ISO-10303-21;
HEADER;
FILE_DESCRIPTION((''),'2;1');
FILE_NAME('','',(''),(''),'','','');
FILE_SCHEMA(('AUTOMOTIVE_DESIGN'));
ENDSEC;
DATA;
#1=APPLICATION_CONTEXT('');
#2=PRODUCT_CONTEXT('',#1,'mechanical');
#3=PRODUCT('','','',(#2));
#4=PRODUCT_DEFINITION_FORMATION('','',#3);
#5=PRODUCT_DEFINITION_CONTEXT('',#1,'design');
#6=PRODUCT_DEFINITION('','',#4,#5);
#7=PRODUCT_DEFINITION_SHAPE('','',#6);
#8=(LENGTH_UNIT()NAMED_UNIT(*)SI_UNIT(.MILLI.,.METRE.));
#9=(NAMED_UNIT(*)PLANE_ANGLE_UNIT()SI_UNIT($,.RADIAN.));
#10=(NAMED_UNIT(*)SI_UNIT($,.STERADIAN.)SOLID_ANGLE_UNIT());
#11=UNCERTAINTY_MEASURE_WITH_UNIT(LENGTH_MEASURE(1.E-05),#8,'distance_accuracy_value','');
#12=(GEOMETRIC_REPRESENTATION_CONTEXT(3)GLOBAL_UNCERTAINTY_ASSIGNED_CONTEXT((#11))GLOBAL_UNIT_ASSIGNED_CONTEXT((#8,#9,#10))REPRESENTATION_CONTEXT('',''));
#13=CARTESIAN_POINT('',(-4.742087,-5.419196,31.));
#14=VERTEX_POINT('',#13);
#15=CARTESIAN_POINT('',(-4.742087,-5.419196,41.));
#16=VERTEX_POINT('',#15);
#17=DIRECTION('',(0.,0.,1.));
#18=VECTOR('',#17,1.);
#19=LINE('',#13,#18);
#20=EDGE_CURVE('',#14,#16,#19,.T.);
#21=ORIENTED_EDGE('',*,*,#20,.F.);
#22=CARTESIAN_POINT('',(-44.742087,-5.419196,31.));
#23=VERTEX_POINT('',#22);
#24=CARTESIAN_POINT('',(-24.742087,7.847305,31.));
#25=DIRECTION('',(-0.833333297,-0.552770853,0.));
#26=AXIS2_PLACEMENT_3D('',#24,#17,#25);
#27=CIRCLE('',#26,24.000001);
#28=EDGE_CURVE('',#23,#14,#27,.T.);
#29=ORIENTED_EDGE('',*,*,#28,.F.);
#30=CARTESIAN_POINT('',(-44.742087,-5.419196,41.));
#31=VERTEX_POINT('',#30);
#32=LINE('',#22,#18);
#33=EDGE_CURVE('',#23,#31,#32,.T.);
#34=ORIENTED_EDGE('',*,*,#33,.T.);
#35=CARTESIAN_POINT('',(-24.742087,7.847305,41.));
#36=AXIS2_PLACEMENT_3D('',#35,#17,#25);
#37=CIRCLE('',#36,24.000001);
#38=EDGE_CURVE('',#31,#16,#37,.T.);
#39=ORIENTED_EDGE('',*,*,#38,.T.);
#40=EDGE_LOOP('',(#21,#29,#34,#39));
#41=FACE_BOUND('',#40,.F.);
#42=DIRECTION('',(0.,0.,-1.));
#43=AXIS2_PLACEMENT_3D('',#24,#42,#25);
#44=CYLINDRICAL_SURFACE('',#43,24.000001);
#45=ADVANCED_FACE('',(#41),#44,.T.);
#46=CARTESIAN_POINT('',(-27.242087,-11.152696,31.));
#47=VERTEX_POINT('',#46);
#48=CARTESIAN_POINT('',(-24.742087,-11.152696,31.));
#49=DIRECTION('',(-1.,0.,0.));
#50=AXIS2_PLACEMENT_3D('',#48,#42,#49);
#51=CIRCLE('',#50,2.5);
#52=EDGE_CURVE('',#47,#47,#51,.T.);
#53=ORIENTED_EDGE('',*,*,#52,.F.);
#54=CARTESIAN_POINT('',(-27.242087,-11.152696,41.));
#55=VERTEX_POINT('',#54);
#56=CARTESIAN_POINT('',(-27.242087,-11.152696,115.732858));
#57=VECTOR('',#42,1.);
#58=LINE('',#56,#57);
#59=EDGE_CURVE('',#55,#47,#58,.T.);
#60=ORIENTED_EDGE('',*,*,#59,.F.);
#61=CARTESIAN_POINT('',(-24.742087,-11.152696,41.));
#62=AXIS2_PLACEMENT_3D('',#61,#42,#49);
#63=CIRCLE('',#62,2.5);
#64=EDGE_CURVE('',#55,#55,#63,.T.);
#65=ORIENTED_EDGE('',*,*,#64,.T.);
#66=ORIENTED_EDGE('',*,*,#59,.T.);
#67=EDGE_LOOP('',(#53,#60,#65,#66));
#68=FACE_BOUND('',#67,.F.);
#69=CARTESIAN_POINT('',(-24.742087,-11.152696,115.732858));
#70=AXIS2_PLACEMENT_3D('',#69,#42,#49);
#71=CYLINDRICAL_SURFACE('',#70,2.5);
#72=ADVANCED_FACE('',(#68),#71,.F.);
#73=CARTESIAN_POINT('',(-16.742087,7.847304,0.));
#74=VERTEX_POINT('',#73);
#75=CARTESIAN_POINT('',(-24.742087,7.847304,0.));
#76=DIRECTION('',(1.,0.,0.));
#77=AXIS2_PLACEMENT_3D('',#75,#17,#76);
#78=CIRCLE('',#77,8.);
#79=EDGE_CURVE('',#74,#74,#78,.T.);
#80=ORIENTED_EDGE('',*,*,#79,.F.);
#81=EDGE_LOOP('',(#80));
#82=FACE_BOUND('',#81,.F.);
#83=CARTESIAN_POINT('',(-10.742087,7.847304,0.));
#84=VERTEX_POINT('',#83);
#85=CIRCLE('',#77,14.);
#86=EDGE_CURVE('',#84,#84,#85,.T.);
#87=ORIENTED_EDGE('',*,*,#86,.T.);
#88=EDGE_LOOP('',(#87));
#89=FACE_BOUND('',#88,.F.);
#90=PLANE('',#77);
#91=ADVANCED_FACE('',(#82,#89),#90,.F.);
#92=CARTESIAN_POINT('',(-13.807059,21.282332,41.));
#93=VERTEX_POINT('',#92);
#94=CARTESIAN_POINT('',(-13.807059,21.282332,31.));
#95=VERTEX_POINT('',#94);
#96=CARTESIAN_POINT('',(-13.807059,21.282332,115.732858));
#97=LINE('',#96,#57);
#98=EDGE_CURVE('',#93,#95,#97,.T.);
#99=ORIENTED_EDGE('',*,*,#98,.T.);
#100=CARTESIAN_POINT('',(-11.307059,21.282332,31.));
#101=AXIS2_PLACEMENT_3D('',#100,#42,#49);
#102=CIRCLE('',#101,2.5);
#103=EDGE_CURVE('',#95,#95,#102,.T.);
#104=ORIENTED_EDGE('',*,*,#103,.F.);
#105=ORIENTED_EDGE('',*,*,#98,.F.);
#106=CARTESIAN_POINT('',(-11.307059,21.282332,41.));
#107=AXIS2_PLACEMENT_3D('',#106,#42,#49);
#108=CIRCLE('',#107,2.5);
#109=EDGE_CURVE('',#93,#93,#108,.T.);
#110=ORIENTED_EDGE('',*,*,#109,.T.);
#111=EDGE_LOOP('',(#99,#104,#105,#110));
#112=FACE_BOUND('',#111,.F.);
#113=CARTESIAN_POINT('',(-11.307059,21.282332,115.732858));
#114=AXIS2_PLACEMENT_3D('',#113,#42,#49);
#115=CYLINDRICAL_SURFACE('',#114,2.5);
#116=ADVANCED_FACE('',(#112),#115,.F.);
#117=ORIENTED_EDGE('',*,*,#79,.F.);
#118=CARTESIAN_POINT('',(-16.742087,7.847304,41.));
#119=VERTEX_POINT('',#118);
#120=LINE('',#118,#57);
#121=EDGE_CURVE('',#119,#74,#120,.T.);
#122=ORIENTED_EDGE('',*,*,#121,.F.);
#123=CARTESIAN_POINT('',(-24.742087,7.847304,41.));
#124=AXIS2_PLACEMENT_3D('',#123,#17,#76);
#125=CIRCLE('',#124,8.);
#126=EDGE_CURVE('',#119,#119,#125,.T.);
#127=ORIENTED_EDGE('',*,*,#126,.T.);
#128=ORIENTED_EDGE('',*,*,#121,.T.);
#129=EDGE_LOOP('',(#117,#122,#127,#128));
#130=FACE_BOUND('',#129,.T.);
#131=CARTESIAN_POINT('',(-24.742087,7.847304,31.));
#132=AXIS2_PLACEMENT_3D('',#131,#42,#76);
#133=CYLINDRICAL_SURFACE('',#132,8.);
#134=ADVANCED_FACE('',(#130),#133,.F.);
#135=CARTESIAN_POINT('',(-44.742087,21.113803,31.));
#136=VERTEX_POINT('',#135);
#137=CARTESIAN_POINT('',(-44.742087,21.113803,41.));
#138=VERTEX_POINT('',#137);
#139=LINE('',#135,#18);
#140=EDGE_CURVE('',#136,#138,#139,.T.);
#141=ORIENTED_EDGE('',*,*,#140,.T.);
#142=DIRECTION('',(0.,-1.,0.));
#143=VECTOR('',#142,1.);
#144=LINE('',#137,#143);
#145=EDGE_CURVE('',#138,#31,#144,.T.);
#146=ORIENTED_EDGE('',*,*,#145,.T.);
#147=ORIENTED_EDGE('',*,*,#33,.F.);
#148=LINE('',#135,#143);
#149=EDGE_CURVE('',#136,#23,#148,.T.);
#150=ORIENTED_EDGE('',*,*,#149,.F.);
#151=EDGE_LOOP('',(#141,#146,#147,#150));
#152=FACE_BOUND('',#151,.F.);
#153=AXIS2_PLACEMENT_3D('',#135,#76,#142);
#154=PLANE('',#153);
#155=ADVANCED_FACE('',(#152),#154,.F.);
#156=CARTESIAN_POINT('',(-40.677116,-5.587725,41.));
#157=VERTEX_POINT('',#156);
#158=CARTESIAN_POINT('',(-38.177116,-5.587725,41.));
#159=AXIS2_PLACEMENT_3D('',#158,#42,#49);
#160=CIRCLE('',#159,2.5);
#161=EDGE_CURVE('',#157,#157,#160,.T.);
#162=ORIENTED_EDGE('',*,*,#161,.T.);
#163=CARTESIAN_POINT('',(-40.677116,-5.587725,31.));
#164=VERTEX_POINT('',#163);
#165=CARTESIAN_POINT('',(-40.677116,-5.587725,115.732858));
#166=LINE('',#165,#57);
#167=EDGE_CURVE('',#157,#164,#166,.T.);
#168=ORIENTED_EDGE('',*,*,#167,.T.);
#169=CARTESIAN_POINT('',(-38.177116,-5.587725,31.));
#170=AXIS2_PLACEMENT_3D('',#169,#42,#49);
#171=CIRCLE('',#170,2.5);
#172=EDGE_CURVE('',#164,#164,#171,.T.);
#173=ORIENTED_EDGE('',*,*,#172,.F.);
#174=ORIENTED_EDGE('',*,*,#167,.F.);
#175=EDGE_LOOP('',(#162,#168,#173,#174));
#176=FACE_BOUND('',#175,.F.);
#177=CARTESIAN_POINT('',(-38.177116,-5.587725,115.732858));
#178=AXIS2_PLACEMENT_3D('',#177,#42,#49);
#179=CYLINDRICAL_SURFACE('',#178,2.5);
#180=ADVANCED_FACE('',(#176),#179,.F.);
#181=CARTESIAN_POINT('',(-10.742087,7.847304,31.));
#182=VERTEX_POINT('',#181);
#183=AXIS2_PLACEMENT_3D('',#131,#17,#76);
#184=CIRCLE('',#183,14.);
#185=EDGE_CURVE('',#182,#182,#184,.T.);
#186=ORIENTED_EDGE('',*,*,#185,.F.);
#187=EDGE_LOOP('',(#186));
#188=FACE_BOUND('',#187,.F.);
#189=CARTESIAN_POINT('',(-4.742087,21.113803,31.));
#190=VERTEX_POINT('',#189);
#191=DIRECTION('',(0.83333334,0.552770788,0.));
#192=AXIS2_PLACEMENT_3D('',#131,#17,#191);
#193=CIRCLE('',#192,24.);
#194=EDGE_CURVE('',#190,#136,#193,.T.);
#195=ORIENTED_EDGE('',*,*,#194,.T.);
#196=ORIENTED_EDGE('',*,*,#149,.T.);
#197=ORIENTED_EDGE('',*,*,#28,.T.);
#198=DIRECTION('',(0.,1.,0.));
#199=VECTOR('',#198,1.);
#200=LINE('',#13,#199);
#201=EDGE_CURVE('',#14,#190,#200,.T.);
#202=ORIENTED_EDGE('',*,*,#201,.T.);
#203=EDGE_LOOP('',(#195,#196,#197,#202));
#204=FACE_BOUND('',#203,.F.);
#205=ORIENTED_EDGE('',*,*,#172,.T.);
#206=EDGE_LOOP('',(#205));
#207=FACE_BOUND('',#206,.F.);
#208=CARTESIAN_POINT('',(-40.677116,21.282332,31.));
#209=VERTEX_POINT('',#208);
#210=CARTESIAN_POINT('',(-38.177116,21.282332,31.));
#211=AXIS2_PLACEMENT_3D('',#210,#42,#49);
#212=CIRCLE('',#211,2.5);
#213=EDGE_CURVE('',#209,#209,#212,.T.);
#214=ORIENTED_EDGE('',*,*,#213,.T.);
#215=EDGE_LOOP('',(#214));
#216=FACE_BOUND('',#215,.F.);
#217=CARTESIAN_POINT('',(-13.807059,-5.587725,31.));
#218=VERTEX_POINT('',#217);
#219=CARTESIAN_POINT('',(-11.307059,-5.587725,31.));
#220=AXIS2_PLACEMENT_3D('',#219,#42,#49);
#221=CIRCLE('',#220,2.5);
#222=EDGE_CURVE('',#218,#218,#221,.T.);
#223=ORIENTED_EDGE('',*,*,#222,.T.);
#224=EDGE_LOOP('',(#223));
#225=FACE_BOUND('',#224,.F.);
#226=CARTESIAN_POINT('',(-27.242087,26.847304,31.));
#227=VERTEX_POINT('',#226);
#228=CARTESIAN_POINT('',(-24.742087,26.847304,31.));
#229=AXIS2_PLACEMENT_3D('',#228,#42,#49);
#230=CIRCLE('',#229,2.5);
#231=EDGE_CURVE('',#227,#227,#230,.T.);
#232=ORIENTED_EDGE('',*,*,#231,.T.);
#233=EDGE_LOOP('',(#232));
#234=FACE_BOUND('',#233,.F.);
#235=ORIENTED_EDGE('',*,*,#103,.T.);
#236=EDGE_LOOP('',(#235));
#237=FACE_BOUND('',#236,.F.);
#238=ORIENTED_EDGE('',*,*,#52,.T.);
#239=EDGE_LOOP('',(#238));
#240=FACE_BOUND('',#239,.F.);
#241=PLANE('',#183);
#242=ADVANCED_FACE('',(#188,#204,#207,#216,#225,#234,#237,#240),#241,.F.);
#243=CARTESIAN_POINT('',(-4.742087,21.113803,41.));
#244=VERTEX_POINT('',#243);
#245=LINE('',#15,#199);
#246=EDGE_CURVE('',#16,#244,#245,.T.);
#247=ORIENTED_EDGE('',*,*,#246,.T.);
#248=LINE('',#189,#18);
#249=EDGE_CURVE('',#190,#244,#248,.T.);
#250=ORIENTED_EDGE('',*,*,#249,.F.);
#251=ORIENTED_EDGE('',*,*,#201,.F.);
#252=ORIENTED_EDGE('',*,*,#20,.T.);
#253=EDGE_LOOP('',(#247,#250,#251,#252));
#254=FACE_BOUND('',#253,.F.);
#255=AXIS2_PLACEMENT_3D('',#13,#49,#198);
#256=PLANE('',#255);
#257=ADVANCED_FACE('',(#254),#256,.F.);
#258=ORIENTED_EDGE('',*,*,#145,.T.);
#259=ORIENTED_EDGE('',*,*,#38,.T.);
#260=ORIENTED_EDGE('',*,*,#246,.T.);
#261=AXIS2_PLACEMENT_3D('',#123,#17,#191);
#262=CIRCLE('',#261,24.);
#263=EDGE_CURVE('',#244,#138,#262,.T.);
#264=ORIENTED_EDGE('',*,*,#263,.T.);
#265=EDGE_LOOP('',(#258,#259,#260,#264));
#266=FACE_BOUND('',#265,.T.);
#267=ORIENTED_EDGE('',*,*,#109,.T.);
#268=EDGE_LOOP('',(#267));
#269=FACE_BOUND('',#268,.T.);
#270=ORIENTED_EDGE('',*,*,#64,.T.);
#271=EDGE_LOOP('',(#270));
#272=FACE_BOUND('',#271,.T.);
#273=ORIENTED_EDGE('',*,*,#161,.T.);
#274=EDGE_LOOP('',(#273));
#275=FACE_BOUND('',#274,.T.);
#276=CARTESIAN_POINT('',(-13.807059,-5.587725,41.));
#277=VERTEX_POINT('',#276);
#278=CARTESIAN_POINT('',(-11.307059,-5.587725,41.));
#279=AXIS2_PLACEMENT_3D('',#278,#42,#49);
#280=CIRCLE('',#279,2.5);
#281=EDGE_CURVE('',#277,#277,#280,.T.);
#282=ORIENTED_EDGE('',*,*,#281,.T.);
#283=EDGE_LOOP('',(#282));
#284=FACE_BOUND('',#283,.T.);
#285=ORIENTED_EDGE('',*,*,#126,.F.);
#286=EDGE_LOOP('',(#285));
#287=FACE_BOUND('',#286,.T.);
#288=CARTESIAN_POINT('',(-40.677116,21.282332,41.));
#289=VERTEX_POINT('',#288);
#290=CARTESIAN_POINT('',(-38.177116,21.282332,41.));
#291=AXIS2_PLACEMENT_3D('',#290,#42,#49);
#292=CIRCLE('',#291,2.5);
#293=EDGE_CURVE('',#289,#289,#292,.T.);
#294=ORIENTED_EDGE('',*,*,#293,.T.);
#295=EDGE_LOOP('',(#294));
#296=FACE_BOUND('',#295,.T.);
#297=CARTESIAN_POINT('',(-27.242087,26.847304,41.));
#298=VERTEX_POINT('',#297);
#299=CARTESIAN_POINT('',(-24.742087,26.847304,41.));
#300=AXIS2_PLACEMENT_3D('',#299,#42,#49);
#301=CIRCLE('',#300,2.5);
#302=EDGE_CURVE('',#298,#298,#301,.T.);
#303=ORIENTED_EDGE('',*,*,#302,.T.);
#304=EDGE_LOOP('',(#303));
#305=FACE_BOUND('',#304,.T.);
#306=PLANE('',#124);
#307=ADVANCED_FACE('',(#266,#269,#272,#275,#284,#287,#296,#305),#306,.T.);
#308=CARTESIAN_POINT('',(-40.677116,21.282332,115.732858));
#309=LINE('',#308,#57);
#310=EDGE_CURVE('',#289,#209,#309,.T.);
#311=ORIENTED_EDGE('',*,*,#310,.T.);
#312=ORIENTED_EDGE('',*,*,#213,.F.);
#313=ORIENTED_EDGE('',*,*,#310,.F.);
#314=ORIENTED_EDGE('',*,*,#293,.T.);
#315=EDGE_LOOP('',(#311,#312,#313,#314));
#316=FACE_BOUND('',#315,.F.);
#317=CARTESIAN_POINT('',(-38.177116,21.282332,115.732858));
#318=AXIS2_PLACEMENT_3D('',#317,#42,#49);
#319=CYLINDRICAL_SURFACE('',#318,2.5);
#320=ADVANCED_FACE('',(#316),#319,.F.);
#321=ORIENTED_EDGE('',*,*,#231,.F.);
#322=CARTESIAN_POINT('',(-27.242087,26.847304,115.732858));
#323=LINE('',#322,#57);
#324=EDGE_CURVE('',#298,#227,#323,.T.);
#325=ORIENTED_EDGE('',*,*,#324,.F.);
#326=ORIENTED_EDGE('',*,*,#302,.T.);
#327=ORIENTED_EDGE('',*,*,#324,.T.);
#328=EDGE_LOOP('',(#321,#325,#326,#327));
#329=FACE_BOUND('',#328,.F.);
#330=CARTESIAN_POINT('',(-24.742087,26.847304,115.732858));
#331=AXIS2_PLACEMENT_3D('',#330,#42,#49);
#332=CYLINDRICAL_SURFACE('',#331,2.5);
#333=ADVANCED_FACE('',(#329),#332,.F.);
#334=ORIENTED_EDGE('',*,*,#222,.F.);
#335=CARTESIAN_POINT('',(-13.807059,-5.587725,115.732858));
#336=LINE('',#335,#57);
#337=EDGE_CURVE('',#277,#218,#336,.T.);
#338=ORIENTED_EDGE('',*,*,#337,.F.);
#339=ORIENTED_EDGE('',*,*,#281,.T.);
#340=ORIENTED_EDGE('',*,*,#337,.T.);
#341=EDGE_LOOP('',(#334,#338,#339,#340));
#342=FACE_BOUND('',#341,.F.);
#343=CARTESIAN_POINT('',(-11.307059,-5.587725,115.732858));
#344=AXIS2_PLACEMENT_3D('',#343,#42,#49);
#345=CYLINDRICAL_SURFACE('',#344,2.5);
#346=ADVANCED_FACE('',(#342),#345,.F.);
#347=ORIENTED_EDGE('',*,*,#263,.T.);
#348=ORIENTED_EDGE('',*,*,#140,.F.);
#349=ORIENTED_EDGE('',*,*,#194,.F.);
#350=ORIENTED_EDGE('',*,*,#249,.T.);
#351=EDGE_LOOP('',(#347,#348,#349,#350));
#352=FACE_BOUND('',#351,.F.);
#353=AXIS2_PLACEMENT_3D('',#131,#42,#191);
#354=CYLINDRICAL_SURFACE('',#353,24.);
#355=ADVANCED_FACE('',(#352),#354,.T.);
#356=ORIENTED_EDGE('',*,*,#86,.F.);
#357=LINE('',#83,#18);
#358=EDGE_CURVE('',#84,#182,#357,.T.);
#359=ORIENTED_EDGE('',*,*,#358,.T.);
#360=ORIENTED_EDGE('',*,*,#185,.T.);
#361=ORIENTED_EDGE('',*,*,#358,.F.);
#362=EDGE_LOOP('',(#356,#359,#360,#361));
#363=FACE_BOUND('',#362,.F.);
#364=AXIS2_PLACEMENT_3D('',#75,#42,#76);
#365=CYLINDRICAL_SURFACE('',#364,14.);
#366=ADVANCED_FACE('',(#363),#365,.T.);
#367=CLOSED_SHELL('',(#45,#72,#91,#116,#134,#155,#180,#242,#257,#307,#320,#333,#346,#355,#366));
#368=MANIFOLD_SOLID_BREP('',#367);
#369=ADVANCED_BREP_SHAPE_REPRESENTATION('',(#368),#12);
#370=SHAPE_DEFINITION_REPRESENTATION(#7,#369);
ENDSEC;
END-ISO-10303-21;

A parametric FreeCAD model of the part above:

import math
import FreeCAD as App
import Part
import Sketcher

V = App.Vector

doc = App.newDocument("Part")
body = doc.addObject("PartDesign::Body", "Body")

# Sketch on XY plane
sketch1 = body.newObject("Sketcher::SketchObject", "Sketch")
sketch1.AttachmentSupport = (doc.getObject("XY_Plane"), [""])
sketch1.MapMode = "FlatFace"
sketch1.addGeometry(Part.Circle(V(-25, 8, 0), V(0, 0, 1), 14), False)
sketch1.addGeometry(Part.Circle(V(-25, 8, 0), V(0, 0, 1), 8), False)
sketch1.addConstraint(Sketcher.Constraint("Coincident", 1, 3, 0, 3))
sketch1.addConstraint(Sketcher.Constraint("Diameter", 0, 28.0))
sketch1.addConstraint(Sketcher.Constraint("Diameter", 1, 16.0))
sketch1.addConstraint(Sketcher.Constraint("DistanceX", 0, 3, -1, 1, 24.742087))
sketch1.addConstraint(Sketcher.Constraint("DistanceY", -1, 1, 0, 3, 7.847304))
pad1 = body.newObject("PartDesign::Pad", "Pad")
pad1.Profile = sketch1
pad1.Length = 31

# Sketch on XY plane
sketch2 = body.newObject("Sketcher::SketchObject", "Sketch001")
sketch2.AttachmentSupport = (doc.getObject("XY_Plane"), [""])
sketch2.MapMode = "FlatFace"
sketch2.AttachmentOffset = App.Placement(V(0, 0, 31), App.Rotation())
sketch2.addGeometry(Part.LineSegment(V(-5, -5, 0), V(-5, 21, 0)), False)
sketch2.addGeometry(Part.ArcOfCircle(Part.Circle(V(-25, 8, 0), V(0, 0, 1), 24), math.radians(34), math.radians(146)), False)
sketch2.addGeometry(Part.LineSegment(V(-45, 21, 0), V(-45, -5, 0)), False)
sketch2.addGeometry(Part.ArcOfCircle(Part.Circle(V(-25, 8, 0), V(0, 0, 1), 24), math.radians(-146), math.radians(-34)), False)
sketch2.addGeometry(Part.Circle(V(-25, 8, 0), V(0, 0, 1), 8), False)
sketch2.addConstraint(Sketcher.Constraint("Coincident", 0, 2, 1, 1))
sketch2.addConstraint(Sketcher.Constraint("Coincident", 1, 2, 2, 1))
sketch2.addConstraint(Sketcher.Constraint("Coincident", 2, 2, 3, 1))
sketch2.addConstraint(Sketcher.Constraint("Coincident", 3, 2, 0, 1))
sketch2.addConstraint(Sketcher.Constraint("Vertical", 0))
sketch2.addConstraint(Sketcher.Constraint("Vertical", 2))
sketch2.addConstraint(Sketcher.Constraint("Coincident", 3, 3, 1, 3))
sketch2.addConstraint(Sketcher.Constraint("Coincident", 4, 3, 1, 3))
sketch2.addConstraint(Sketcher.Constraint("Equal", 1, 3))
sketch2.addConstraint(Sketcher.Constraint("Horizontal", 0, 2, 1, 2))
sketch2.addConstraint(Sketcher.Constraint("Diameter", 4, 16.0))
sketch2.addConstraint(Sketcher.Constraint("Radius", 1, 24.0))
sketch2.addConstraint(Sketcher.Constraint("DistanceX", 3, 3, 0, 2, 20.0))
sketch2.addConstraint(Sketcher.Constraint("DistanceX", 1, 3, -1, 1, 24.742087))
sketch2.addConstraint(Sketcher.Constraint("DistanceY", -1, 1, 1, 3, 7.847304))
pad2 = body.newObject("PartDesign::Pad", "Pad001")
pad2.Profile = sketch2
pad2.Length = 10

# Sketch on XY plane
sketch3 = body.newObject("Sketcher::SketchObject", "Sketch002")
sketch3.AttachmentSupport = (doc.getObject("XY_Plane"), [""])
sketch3.MapMode = "FlatFace"
sketch3.AttachmentOffset = App.Placement(V(0, 0, 41), App.Rotation())
sketch3.addGeometry(Part.Circle(V(-38.2, 21.3, 0), V(0, 0, 1), 2.5), False)
sketch3.addGeometry(Part.Circle(V(-24.7, 26.8, 0), V(0, 0, 1), 2.5), False)
sketch3.addGeometry(Part.Circle(V(-11.3, 21.3, 0), V(0, 0, 1), 2.5), False)
sketch3.addGeometry(Part.Circle(V(-11.3, -5.6, 0), V(0, 0, 1), 2.5), False)
sketch3.addGeometry(Part.Circle(V(-24.7, -11.2, 0), V(0, 0, 1), 2.5), False)
sketch3.addGeometry(Part.Circle(V(-38.2, -5.6, 0), V(0, 0, 1), 2.5), False)
sketch3.addConstraint(Sketcher.Constraint("Equal", 0, 1))
sketch3.addConstraint(Sketcher.Constraint("Equal", 1, 2))
sketch3.addConstraint(Sketcher.Constraint("Equal", 2, 3))
sketch3.addConstraint(Sketcher.Constraint("Equal", 3, 4))
sketch3.addConstraint(Sketcher.Constraint("Equal", 4, 5))
sketch3.addConstraint(Sketcher.Constraint("Horizontal", 0, 3, 2, 3))
sketch3.addConstraint(Sketcher.Constraint("Horizontal", 3, 3, 5, 3))
sketch3.addConstraint(Sketcher.Constraint("Vertical", 2, 3, 3, 3))
sketch3.addConstraint(Sketcher.Constraint("Vertical", 1, 3, 4, 3))
sketch3.addConstraint(Sketcher.Constraint("Vertical", 0, 3, 5, 3))
sketch3.addConstraint(Sketcher.Constraint("Diameter", 0, 5.0))
sketch3.addConstraint(Sketcher.Constraint("DistanceY", 4, 3, 1, 3, 38.0))
sketch3.addConstraint(Sketcher.Constraint("DistanceY", -1, 1, 0, 3, 21.282332))
sketch3.addConstraint(Sketcher.Constraint("DistanceX", 2, 3, -1, 1, 11.307059))
sketch3.addConstraint(Sketcher.Constraint("DistanceX", 0, 3, 1, 3, 13.435029))
sketch3.addConstraint(Sketcher.Constraint("DistanceX", 1, 3, 2, 3, 13.435028))
sketch3.addConstraint(Sketcher.Constraint("DistanceY", 3, 3, 1, 3, 32.435029))
sketch3.addConstraint(Sketcher.Constraint("DistanceY", 4, 3, 2, 3, 32.435028))
doc.recompute()
hole = body.newObject("PartDesign::Hole", "Hole")
hole.Profile = sketch3
hole.ThreadType = "None"
hole.Diameter = 5
hole.DepthType = "ThroughAll"

doc.recompute()
